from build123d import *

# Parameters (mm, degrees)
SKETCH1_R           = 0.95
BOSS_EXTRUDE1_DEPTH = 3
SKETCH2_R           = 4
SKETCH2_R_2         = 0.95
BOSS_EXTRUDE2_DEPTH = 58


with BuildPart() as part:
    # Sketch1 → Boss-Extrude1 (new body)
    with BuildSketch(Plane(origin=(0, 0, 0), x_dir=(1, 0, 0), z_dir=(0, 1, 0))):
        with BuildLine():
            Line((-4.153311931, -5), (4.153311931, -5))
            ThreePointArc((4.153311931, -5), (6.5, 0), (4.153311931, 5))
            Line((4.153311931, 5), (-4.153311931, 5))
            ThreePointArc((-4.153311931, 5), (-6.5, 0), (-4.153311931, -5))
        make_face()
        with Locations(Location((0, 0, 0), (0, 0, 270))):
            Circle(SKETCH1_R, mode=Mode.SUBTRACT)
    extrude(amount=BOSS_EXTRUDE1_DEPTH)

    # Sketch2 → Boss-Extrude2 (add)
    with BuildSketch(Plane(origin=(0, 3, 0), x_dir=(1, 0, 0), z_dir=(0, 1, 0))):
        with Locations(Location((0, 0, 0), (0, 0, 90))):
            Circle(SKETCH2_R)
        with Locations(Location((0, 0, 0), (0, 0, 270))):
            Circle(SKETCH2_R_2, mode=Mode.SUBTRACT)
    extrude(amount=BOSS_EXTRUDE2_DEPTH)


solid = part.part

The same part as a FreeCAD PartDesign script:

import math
import FreeCAD as App
import Part
import Sketcher
from FreeCAD import Vector

doc = App.newDocument("Part")
body = doc.addObject("PartDesign::Body", "Body")

sketch1 = doc.addObject("Sketcher::SketchObject", "Sketch")
body.addObject(sketch1)
sketch1.AttachmentSupport = (doc.XZ_Plane, [""])
sketch1.MapMode = "FlatFace"
sketch1.addGeometry([
    Part.LineSegment(Vector(-4.2, 5, 0), Vector(4.2, 5, 0)),
    Part.ArcOfCircle(Part.Circle(Vector(0, 0, 0), Vector(0, 0, 1), 6.5), math.radians(-50), math.radians(50)),
    Part.LineSegment(Vector(4.2, -5, 0), Vector(-4.2, -5, 0)),
    Part.ArcOfCircle(Part.Circle(Vector(0, 0, 0), Vector(0, 0, 1), 6.5), math.radians(130), math.radians(230)),
    Part.Circle(Vector(0, 0, 0), Vector(0, 0, 1), 0.9),
], False)
sketch1.addConstraint([
    Sketcher.Constraint("Coincident", 0, 2, 1, 2),
    Sketcher.Constraint("Coincident", 1, 1, 2, 1),
    Sketcher.Constraint("Coincident", 2, 2, 3, 2),
    Sketcher.Constraint("Coincident", 3, 1, 0, 1),
    Sketcher.Constraint("Horizontal", 0),
    Sketcher.Constraint("Horizontal", 2),
    Sketcher.Constraint("Coincident", 1, 3, -1, 1),
    Sketcher.Constraint("Coincident", 3, 3, -1, 1),
    Sketcher.Constraint("Coincident", 4, 3, -1, 1),
    Sketcher.Constraint("Equal", 1, 3),
    Sketcher.Constraint("Vertical", 0, 2, 1, 1),
    Sketcher.Constraint("Diameter", 4, 1.9),
    Sketcher.Constraint("Radius", 1, 6.5),
    Sketcher.Constraint("DistanceY", -1, 1, 0, 2, 5.0),
])
pad1 = doc.addObject("PartDesign::Pad", "Pad")
body.addObject(pad1)
pad1.Profile = sketch1
pad1.Length = 3
pad1.Reversed = True

sketch2 = doc.addObject("Sketcher::SketchObject", "Sketch001")
body.addObject(sketch2)
sketch2.AttachmentSupport = (doc.XZ_Plane, [""])
sketch2.MapMode = "FlatFace"
sketch2.AttachmentOffset = App.Placement(Vector(0, 0, -3), App.Rotation())
sketch2.addGeometry([
    Part.Circle(Vector(0, 0, 0), Vector(0, 0, 1), 4),
    Part.Circle(Vector(0, 0, 0), Vector(0, 0, 1), 0.9),
], False)
sketch2.addConstraint([
    Sketcher.Constraint("Coincident", 0, 3, -1, 1),
    Sketcher.Constraint("Coincident", 1, 3, -1, 1),
    Sketcher.Constraint("Diameter", 0, 8.0),
    Sketcher.Constraint("Diameter", 1, 1.9),
])
pad2 = doc.addObject("PartDesign::Pad", "Pad001")
body.addObject(pad2)
pad2.Profile = sketch2
pad2.Length = 58
pad2.Reversed = True

doc.recompute()
